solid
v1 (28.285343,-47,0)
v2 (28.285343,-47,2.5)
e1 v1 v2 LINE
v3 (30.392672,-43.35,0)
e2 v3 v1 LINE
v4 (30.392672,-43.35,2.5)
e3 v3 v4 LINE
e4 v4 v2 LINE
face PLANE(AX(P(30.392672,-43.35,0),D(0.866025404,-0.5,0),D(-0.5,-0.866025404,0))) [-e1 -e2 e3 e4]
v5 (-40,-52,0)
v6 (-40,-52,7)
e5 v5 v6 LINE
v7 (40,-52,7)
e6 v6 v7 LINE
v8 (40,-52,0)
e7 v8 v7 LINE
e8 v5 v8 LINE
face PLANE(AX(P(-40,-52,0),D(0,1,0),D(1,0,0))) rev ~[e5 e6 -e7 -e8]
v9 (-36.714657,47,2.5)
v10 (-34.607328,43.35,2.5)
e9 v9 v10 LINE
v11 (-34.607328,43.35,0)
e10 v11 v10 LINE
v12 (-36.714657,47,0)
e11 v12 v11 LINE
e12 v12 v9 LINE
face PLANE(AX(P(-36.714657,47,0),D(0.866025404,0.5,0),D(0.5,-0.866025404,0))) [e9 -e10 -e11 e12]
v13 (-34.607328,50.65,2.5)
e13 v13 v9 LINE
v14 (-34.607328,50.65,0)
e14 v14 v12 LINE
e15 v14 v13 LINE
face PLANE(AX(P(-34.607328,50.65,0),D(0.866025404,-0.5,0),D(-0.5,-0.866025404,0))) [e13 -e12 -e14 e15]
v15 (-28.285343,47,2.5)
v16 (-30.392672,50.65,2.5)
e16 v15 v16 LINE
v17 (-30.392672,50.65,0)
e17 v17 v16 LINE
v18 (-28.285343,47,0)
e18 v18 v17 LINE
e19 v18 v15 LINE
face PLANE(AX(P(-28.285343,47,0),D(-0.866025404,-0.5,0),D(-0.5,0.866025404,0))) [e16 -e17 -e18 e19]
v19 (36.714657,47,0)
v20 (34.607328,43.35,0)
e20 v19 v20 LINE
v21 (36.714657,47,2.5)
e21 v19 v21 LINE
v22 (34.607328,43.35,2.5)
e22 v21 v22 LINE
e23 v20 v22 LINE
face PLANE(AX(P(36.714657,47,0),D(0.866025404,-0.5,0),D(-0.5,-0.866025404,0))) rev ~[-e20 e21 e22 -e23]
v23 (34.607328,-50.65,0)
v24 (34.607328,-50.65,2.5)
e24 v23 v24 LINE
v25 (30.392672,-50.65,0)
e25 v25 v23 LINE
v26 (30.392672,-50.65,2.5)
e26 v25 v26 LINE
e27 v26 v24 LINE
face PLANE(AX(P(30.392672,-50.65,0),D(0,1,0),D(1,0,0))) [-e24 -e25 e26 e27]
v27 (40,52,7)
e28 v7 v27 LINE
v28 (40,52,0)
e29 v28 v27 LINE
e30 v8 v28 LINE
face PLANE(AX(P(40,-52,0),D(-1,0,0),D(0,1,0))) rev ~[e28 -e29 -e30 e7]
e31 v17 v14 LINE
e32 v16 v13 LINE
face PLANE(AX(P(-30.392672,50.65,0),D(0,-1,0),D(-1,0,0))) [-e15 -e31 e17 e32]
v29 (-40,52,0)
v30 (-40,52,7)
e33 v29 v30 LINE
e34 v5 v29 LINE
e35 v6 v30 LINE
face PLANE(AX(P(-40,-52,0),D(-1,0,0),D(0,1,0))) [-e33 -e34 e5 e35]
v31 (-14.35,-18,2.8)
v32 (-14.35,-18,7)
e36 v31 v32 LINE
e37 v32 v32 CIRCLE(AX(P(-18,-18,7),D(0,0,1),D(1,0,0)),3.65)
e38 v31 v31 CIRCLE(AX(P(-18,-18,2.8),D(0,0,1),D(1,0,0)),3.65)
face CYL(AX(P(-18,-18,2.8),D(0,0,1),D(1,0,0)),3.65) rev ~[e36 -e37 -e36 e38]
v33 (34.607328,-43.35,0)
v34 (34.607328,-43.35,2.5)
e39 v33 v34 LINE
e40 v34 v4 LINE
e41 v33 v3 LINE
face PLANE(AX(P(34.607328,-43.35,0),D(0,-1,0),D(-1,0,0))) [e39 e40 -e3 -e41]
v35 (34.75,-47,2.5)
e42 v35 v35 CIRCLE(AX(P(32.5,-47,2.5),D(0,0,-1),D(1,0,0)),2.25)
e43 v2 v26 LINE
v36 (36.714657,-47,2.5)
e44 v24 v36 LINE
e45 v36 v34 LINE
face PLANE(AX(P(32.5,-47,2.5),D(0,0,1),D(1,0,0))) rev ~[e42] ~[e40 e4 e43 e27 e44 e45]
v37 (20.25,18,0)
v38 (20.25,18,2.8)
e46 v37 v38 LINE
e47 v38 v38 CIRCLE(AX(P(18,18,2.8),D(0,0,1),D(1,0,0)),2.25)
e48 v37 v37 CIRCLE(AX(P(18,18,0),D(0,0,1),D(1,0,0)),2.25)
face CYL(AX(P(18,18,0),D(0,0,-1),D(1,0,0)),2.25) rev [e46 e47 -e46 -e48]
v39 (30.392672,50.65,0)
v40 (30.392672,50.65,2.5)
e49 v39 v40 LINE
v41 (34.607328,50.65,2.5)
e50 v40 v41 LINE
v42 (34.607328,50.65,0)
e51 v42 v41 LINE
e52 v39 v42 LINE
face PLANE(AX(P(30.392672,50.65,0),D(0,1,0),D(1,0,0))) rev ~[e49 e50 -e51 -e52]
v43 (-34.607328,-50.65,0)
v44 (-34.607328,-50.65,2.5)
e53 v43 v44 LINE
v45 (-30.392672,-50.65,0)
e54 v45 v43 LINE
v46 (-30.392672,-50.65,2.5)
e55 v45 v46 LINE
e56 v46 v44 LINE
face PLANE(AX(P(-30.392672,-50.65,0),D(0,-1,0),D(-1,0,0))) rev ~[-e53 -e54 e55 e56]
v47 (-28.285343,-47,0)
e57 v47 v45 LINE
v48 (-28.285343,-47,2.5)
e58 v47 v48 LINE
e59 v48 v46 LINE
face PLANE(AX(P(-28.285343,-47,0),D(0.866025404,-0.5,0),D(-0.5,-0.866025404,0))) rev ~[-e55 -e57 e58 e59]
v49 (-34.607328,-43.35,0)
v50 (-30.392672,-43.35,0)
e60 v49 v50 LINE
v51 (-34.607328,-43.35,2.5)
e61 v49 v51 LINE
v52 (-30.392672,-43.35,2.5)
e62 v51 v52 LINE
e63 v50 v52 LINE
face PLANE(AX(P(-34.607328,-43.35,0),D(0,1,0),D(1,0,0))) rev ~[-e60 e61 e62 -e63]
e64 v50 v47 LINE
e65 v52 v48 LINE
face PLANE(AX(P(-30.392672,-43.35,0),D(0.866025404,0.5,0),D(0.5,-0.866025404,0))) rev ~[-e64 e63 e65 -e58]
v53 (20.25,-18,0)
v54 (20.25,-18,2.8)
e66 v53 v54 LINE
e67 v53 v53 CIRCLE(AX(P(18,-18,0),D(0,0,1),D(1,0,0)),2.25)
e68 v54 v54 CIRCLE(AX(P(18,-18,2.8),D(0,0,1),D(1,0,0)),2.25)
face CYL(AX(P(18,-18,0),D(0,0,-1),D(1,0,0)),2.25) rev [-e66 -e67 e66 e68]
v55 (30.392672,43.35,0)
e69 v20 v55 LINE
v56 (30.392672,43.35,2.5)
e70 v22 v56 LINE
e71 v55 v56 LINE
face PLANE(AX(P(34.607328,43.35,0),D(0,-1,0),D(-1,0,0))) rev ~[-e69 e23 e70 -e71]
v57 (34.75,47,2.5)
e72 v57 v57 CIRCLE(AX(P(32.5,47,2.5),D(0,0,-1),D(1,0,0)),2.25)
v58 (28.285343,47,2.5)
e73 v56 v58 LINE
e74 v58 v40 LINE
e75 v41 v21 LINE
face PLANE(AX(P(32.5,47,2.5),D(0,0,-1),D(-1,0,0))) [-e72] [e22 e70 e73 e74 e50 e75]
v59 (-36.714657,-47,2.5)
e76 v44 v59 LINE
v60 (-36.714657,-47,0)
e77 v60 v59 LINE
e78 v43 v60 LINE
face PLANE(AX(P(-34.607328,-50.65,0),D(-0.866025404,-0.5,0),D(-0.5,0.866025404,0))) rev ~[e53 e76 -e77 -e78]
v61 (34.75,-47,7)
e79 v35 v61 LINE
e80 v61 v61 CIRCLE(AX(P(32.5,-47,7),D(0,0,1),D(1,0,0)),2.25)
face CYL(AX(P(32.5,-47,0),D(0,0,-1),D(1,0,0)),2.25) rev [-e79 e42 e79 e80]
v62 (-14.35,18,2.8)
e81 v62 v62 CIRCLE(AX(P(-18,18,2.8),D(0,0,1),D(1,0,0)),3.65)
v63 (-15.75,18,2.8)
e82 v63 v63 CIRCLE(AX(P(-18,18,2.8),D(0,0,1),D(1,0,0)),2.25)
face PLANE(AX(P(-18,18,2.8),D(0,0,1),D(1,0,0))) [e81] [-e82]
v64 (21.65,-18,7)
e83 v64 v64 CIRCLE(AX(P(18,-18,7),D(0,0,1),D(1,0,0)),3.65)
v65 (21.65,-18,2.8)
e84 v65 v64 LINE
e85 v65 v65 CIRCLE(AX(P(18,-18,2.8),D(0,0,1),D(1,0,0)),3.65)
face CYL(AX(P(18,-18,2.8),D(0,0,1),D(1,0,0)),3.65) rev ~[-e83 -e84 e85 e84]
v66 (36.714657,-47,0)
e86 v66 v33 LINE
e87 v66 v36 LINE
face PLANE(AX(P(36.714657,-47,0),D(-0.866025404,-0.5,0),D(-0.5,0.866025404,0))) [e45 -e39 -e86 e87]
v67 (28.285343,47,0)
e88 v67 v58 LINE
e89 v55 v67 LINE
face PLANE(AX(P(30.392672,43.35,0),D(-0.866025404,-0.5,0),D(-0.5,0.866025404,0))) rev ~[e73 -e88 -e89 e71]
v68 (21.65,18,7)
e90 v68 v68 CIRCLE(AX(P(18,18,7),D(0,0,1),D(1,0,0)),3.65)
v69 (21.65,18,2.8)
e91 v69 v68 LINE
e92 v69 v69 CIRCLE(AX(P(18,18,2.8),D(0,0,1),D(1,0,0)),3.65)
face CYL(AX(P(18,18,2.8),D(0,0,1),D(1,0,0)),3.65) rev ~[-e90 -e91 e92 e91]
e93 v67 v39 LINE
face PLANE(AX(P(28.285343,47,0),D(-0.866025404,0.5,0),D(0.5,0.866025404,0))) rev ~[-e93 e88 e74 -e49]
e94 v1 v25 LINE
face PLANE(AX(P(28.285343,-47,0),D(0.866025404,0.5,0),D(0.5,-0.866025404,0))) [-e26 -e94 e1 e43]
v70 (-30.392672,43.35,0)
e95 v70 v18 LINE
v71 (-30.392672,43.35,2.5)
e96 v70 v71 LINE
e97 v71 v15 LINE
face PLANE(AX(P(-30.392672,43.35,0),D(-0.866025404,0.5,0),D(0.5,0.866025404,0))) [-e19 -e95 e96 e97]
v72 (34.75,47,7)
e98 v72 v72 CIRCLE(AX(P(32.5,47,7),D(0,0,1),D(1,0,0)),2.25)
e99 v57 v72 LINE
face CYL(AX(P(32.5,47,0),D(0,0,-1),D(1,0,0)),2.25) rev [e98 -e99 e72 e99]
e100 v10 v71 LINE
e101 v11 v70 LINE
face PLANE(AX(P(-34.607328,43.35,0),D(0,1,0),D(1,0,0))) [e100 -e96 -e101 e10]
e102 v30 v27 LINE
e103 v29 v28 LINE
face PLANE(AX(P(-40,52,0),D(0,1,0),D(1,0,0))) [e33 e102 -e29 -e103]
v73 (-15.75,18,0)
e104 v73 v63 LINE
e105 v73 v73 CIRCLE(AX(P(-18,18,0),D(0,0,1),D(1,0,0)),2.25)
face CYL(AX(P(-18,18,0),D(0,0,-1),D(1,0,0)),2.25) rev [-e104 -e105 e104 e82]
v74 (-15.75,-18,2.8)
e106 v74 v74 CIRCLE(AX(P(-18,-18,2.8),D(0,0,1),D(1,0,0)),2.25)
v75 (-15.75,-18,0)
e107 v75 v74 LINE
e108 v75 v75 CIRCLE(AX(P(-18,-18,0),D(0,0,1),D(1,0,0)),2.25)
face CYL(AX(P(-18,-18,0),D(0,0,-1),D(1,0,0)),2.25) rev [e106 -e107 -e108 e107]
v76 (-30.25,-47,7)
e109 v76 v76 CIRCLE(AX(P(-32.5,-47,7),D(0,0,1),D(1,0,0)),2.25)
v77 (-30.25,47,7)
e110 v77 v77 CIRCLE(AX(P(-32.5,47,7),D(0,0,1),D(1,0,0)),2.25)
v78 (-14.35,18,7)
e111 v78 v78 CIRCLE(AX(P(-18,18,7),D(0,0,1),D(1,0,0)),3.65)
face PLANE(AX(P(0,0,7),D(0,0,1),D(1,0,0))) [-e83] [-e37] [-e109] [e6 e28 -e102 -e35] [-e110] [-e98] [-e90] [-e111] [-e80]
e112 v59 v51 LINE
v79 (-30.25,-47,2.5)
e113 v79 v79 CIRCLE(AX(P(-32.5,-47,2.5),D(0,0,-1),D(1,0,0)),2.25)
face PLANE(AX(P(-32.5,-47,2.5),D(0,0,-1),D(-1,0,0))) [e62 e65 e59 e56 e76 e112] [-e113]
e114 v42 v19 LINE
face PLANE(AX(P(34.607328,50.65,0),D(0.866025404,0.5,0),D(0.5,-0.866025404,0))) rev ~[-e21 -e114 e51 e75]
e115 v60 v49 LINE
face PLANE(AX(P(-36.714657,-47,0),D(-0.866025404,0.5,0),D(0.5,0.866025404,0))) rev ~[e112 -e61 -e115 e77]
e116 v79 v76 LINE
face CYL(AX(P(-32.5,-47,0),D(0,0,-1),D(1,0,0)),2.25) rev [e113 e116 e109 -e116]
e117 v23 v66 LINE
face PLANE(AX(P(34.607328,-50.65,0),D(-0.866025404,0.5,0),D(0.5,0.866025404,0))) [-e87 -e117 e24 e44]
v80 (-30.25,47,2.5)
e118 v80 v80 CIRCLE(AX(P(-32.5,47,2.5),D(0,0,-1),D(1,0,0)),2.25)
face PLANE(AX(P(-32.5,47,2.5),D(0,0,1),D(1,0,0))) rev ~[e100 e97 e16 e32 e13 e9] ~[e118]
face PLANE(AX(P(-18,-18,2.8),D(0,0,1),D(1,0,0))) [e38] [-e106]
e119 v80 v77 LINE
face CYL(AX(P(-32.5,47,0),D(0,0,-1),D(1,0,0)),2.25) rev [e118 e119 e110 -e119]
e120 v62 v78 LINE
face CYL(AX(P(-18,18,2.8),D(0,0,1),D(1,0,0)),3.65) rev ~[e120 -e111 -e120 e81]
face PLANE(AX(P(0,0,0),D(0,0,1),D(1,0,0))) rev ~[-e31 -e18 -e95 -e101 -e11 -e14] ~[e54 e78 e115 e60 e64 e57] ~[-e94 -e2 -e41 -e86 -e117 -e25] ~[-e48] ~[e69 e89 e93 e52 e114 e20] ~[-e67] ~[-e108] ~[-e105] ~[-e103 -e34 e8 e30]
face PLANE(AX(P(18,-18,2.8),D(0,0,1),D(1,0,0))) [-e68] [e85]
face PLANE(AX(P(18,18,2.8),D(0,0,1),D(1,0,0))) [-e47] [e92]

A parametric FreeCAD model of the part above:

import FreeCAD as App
import Part
import Sketcher
Q = App.Units.Quantity

doc = App.newDocument("Part")
body = doc.addObject("PartDesign::Body", "Body")

# Sketch on XY plane
sketch1 = body.newObject("Sketcher::SketchObject", "Sketch")
sketch1.AttachmentSupport = (doc.getObject("XY_Plane"), [""])
sketch1.MapMode = "FlatFace"
sketch1.addGeometry(Part.LineSegment(App.Vector(-40, 52, 0), App.Vector(-40, -52, 0)), False)
sketch1.addGeometry(Part.LineSegment(App.Vector(-40, -52, 0), App.Vector(40, -52, 0)), False)
sketch1.addGeometry(Part.LineSegment(App.Vector(40, -52, 0), App.Vector(40, 52, 0)), False)
sketch1.addGeometry(Part.LineSegment(App.Vector(40, 52, 0), App.Vector(-40, 52, 0)), False)
sketch1.addGeometry(Part.Circle(App.Vector(-32.5, -47, 0), App.Vector(0, 0, 1), 2.2), False)
sketch1.addGeometry(Part.Circle(App.Vector(-18, -18, 0), App.Vector(0, 0, 1), 2.2), False)
sketch1.addGeometry(Part.Circle(App.Vector(32.5, -47, 0), App.Vector(0, 0, 1), 2.2), False)
sketch1.addGeometry(Part.Circle(App.Vector(18, -18, 0), App.Vector(0, 0, 1), 2.2), False)
sketch1.addGeometry(Part.Circle(App.Vector(-18, 18, 0), App.Vector(0, 0, 1), 2.2), False)
sketch1.addGeometry(Part.Circle(App.Vector(-32.5, 47, 0), App.Vector(0, 0, 1), 2.2), False)
sketch1.addGeometry(Part.Circle(App.Vector(18, 18, 0), App.Vector(0, 0, 1), 2.2), False)
sketch1.addGeometry(Part.Circle(App.Vector(32.5, 47, 0), App.Vector(0, 0, 1), 2.2), False)
sketch1.addConstraint(Sketcher.Constraint("Coincident", 0, 2, 1, 1))
sketch1.addConstraint(Sketcher.Constraint("Coincident", 1, 2, 2, 1))
sketch1.addConstraint(Sketcher.Constraint("Coincident", 2, 2, 3, 1))
sketch1.addConstraint(Sketcher.Constraint("Coincident", 3, 2, 0, 1))
sketch1.addConstraint(Sketcher.Constraint("Vertical", 0))
sketch1.addConstraint(Sketcher.Constraint("Horizontal", 1))
sketch1.addConstraint(Sketcher.Constraint("Vertical", 2))
sketch1.addConstraint(Sketcher.Constraint("Horizontal", 3))
sketch1.addConstraint(Sketcher.Constraint("Equal", 4, 5))
sketch1.addConstraint(Sketcher.Constraint("Equal", 5, 6))
sketch1.addConstraint(Sketcher.Constraint("Equal", 6, 7))
sketch1.addConstraint(Sketcher.Constraint("Equal", 7, 8))
sketch1.addConstraint(Sketcher.Constraint("Equal", 8, 9))
sketch1.addConstraint(Sketcher.Constraint("Equal", 9, 10))
sketch1.addConstraint(Sketcher.Constraint("Equal", 10, 11))
sketch1.addConstraint(Sketcher.Constraint("Symmetric", 7, 3, 8, 3, -1, 1))
sketch1.addConstraint(Sketcher.Constraint("Symmetric", 6, 3, 9, 3, -1, 1))
sketch1.addConstraint(Sketcher.Constraint("Symmetric", 5, 3, 10, 3, -1, 1))
sketch1.addConstraint(Sketcher.Constraint("Symmetric", 4, 3, 11, 3, -1, 1))
sketch1.addConstraint(Sketcher.Constraint("Symmetric", 0, 2, 2, 2, -1, 1))
sketch1.addConstraint(Sketcher.Constraint("Symmetric", 4, 3, 6, 3, -2))
sketch1.addConstraint(Sketcher.Constraint("Symmetric", 5, 3, 7, 3, -2))
sketch1.addConstraint(Sketcher.Constraint("Diameter", 4, Q("4.5 mm")))
sketch1.addConstraint(Sketcher.Constraint("DistanceX", 1, 1, 1, 2, Q("80 mm")))
sketch1.addConstraint(Sketcher.Constraint("DistanceY", 0, 2, 0, 1, Q("104 mm")))
sketch1.addConstraint(Sketcher.Constraint("DistanceY", 4, 3, -1, 1, Q("47 mm")))
sketch1.addConstraint(Sketcher.Constraint("DistanceX", 5, 3, -1, 1, Q("18 mm")))
sketch1.addConstraint(Sketcher.Constraint("DistanceY", 5, 3, -1, 1, Q("18 mm")))
sketch1.addConstraint(Sketcher.Constraint("DistanceX", 4, 3, 6, 3, Q("65 mm")))
pad1 = body.newObject("PartDesign::Pad", "Pad")
pad1.Profile = sketch1
pad1.Length = 7

# Sketch on XY plane
sketch2 = body.newObject("Sketcher::SketchObject", "Sketch001")
sketch2.AttachmentSupport = (doc.getObject("XY_Plane"), [""])
sketch2.MapMode = "FlatFace"
sketch2.AttachmentOffset = App.Placement(App.Vector(0, 0, 7), App.Rotation())
sketch2.addGeometry(Part.Circle(App.Vector(-18, 18, 0), App.Vector(0, 0, 1), 2.2), False)
sketch2.addGeometry(Part.Circle(App.Vector(18, 18, 0), App.Vector(0, 0, 1), 2.2), False)
sketch2.addGeometry(Part.Circle(App.Vector(18, -18, 0), App.Vector(0, 0, 1), 2.2), False)
sketch2.addGeometry(Part.Circle(App.Vector(-18, -18, 0), App.Vector(0, 0, 1), 2.2), False)
sketch2.addConstraint(Sketcher.Constraint("Equal", 0, 1))
sketch2.addConstraint(Sketcher.Constraint("Equal", 1, 2))
sketch2.addConstraint(Sketcher.Constraint("Equal", 2, 3))
sketch2.addConstraint(Sketcher.Constraint("Symmetric", 0, 3, 2, 3, -1, 1))
sketch2.addConstraint(Sketcher.Constraint("Symmetric", 1, 3, 3, 3, -1, 1))
sketch2.addConstraint(Sketcher.Constraint("Symmetric", 0, 3, 1, 3, -2))
sketch2.addConstraint(Sketcher.Constraint("Diameter", 0, Q("4.5 mm")))
sketch2.addConstraint(Sketcher.Constraint("DistanceX", 0, 3, -1, 1, Q("18 mm")))
sketch2.addConstraint(Sketcher.Constraint("DistanceY", -1, 1, 0, 3, Q("18 mm")))
doc.recompute()
hole = body.newObject("PartDesign::Hole", "Hole")
hole.Profile = sketch2
hole.ThreadType = "None"
hole.Diameter = 4.5
hole.DepthType = "ThroughAll"
hole.HoleCutType = "Counterbore"
hole.HoleCutDiameter = 7.3
hole.HoleCutDepth = 4.2

# Sketch on XY plane
sketch3 = body.newObject("Sketcher::SketchObject", "Sketch002")
sketch3.AttachmentSupport = (doc.getObject("XY_Plane"), [""])
sketch3.MapMode = "FlatFace"
sketch3.addGeometry(Part.LineSegment(App.Vector(28.3, 47, 0), App.Vector(30.4, 50.6, 0)), False)
sketch3.addGeometry(Part.LineSegment(App.Vector(30.4, 50.6, 0), App.Vector(34.6, 50.6, 0)), False)
sketch3.addGeometry(Part.LineSegment(App.Vector(34.6, 50.6, 0), App.Vector(36.7, 47, 0)), False)
sketch3.addGeometry(Part.LineSegment(App.Vector(36.7, 47, 0), App.Vector(34.6, 43.4, 0)), False)
sketch3.addGeometry(Part.LineSegment(App.Vector(34.6, 43.4, 0), App.Vector(30.4, 43.4, 0)), False)
sketch3.addGeometry(Part.LineSegment(App.Vector(30.4, 43.4, 0), App.Vector(28.3, 47, 0)), False)
sketch3.addGeometry(Part.LineSegment(App.Vector(-28.3, 47, 0), App.Vector(-30.4, 43.4, 0)), False)
sketch3.addGeometry(Part.LineSegment(App.Vector(-30.4, 43.4, 0), App.Vector(-34.6, 43.4, 0)), False)
sketch3.addGeometry(Part.LineSegment(App.Vector(-34.6, 43.4, 0), App.Vector(-36.7, 47, 0)), False)
sketch3.addGeometry(Part.LineSegment(App.Vector(-36.7, 47, 0), App.Vector(-34.6, 50.6, 0)), False)
sketch3.addGeometry(Part.LineSegment(App.Vector(-34.6, 50.6, 0), App.Vector(-30.4, 50.6, 0)), False)
sketch3.addGeometry(Part.LineSegment(App.Vector(-30.4, 50.6, 0), App.Vector(-28.3, 47, 0)), False)
sketch3.addGeometry(Part.LineSegment(App.Vector(-28.3, -47, 0), App.Vector(-30.4, -50.6, 0)), False)
sketch3.addGeometry(Part.LineSegment(App.Vector(-30.4, -50.6, 0), App.Vector(-34.6, -50.6, 0)), False)
sketch3.addGeometry(Part.LineSegment(App.Vector(-34.6, -50.6, 0), App.Vector(-36.7, -47, 0)), False)
sketch3.addGeometry(Part.LineSegment(App.Vector(-36.7, -47, 0), App.Vector(-34.6, -43.4, 0)), False)
sketch3.addGeometry(Part.LineSegment(App.Vector(-34.6, -43.4, 0), App.Vector(-30.4, -43.4, 0)), False)
sketch3.addGeometry(Part.LineSegment(App.Vector(-30.4, -43.4, 0), App.Vector(-28.3, -47, 0)), False)
sketch3.addGeometry(Part.LineSegment(App.Vector(28.3, -47, 0), App.Vector(30.4, -43.4, 0)), False)
sketch3.addGeometry(Part.LineSegment(App.Vector(30.4, -43.4, 0), App.Vector(34.6, -43.4, 0)), False)
sketch3.addGeometry(Part.LineSegment(App.Vector(34.6, -43.4, 0), App.Vector(36.7, -47, 0)), False)
sketch3.addGeometry(Part.LineSegment(App.Vector(36.7, -47, 0), App.Vector(34.6, -50.6, 0)), False)
sketch3.addGeometry(Part.LineSegment(App.Vector(34.6, -50.6, 0), App.Vector(30.4, -50.6, 0)), False)
sketch3.addGeometry(Part.LineSegment(App.Vector(30.4, -50.6, 0), App.Vector(28.3, -47, 0)), False)
sketch3.addConstraint(Sketcher.Constraint("Coincident", 0, 2, 1, 1))
sketch3.addConstraint(Sketcher.Constraint("Coincident", 1, 2, 2, 1))
sketch3.addConstraint(Sketcher.Constraint("Coincident", 2, 2, 3, 1))
sketch3.addConstraint(Sketcher.Constraint("Coincident", 3, 2, 4, 1))
sketch3.addConstraint(Sketcher.Constraint("Coincident", 4, 2, 5, 1))
sketch3.addConstraint(Sketcher.Constraint("Coincident", 5, 2, 0, 1))
sketch3.addConstraint(Sketcher.Constraint("Coincident", 6, 2, 7, 1))
sketch3.addConstraint(Sketcher.Constraint("Coincident", 7, 2, 8, 1))
sketch3.addConstraint(Sketcher.Constraint("Coincident", 8, 2, 9, 1))
sketch3.addConstraint(Sketcher.Constraint("Coincident", 9, 2, 10, 1))
sketch3.addConstraint(Sketcher.Constraint("Coincident", 10, 2, 11, 1))
sketch3.addConstraint(Sketcher.Constraint("Coincident", 11, 2, 6, 1))
sketch3.addConstraint(Sketcher.Constraint("Coincident", 12, 2, 13, 1))
sketch3.addConstraint(Sketcher.Constraint("Coincident", 13, 2, 14, 1))
sketch3.addConstraint(Sketcher.Constraint("Coincident", 14, 2, 15, 1))
sketch3.addConstraint(Sketcher.Constraint("Coincident", 15, 2, 16, 1))
sketch3.addConstraint(Sketcher.Constraint("Coincident", 16, 2, 17, 1))
sketch3.addConstraint(Sketcher.Constraint("Coincident", 17, 2, 12, 1))
sketch3.addConstraint(Sketcher.Constraint("Coincident", 18, 2, 19, 1))
sketch3.addConstraint(Sketcher.Constraint("Coincident", 19, 2, 20, 1))
sketch3.addConstraint(Sketcher.Constraint("Coincident", 20, 2, 21, 1))
sketch3.addConstraint(Sketcher.Constraint("Coincident", 21, 2, 22, 1))
sketch3.addConstraint(Sketcher.Constraint("Coincident", 22, 2, 23, 1))
sketch3.addConstraint(Sketcher.Constraint("Coincident", 23, 2, 18, 1))
sketch3.addConstraint(Sketcher.Constraint("Horizontal", 1))
sketch3.addConstraint(Sketcher.Constraint("Horizontal", 4))
sketch3.addConstraint(Sketcher.Constraint("Horizontal", 7))
sketch3.addConstraint(Sketcher.Constraint("Horizontal", 10))
sketch3.addConstraint(Sketcher.Constraint("Horizontal", 13))
sketch3.addConstraint(Sketcher.Constraint("Horizontal", 16))
sketch3.addConstraint(Sketcher.Constraint("Horizontal", 19))
sketch3.addConstraint(Sketcher.Constraint("Horizontal", 22))
sketch3.addConstraint(Sketcher.Constraint("Symmetric", 0, 2, 12, 2, -1, 1))
sketch3.addConstraint(Sketcher.Constraint("Symmetric", 2, 2, 14, 2, -1, 1))
sketch3.addConstraint(Sketcher.Constraint("Symmetric", 3, 2, 15, 2, -1, 1))
sketch3.addConstraint(Sketcher.Constraint("Symmetric", 5, 2, 17, 2, -1, 1))
sketch3.addConstraint(Sketcher.Constraint("Symmetric", 6, 2, 18, 2, -1, 1))
sketch3.addConstraint(Sketcher.Constraint("Symmetric", 8, 2, 20, 2, -1, 1))
sketch3.addConstraint(Sketcher.Constraint("Symmetric", 9, 2, 21, 2, -1, 1))
sketch3.addConstraint(Sketcher.Constraint("Symmetric", 11, 2, 23, 2, -1, 1))
sketch3.addConstraint(Sketcher.Constraint("Symmetric", 4, 2, 6, 2, -2))
sketch3.addConstraint(Sketcher.Constraint("Symmetric", 2, 2, 8, 2, -2))
sketch3.addConstraint(Sketcher.Constraint("Symmetric", 1, 2, 9, 2, -2))
sketch3.addConstraint(Sketcher.Constraint("Symmetric", 5, 2, 11, 2, -2))
sketch3.addConstraint(Sketcher.Constraint("Parallel", 0, 3))
sketch3.addConstraint(Sketcher.Constraint("Parallel", 2, 5))
sketch3.addConstraint(Sketcher.Constraint("Parallel", 3, 6))
sketch3.addConstraint(Sketcher.Constraint("Parallel", 5, 8))
sketch3.addConstraint(Sketcher.Constraint("Parallel", 8, 11))
sketch3.addConstraint(Sketcher.Constraint("Parallel", 11, 14))
sketch3.addConstraint(Sketcher.Constraint("Parallel", 14, 17))
sketch3.addConstraint(Sketcher.Constraint("Parallel", 17, 20))
sketch3.addConstraint(Sketcher.Constraint("Parallel", 20, 23))
sketch3.addConstraint(Sketcher.Constraint("Horizontal", 2, 2, 5, 2))
sketch3.addConstraint(Sketcher.Constraint("Vertical", 1, 2, 3, 2))
sketch3.addConstraint(Sketcher.Constraint("Angle", 0, Q("60 deg")))
sketch3.addConstraint(Sketcher.Constraint("DistanceY", -1, 1, 2, 2, Q("47 mm")))
sketch3.addConstraint(Sketcher.Constraint("DistanceX", 6, 2, 3, 2, Q("65 mm")))
sketch3.addConstraint(Sketcher.Constraint("DistanceY", 3, 2, 1, 2, Q("7.3 mm")))
sketch3.addConstraint(Sketcher.Constraint("DistanceX", 1, 1, 1, 2, Q("4.214657 mm")))
pocket1 = body.newObject("PartDesign::Pocket", "Pocket")
pocket1.Profile = sketch3
pocket1.Length = 2.5
pocket1.Reversed = True

doc.recompute()
